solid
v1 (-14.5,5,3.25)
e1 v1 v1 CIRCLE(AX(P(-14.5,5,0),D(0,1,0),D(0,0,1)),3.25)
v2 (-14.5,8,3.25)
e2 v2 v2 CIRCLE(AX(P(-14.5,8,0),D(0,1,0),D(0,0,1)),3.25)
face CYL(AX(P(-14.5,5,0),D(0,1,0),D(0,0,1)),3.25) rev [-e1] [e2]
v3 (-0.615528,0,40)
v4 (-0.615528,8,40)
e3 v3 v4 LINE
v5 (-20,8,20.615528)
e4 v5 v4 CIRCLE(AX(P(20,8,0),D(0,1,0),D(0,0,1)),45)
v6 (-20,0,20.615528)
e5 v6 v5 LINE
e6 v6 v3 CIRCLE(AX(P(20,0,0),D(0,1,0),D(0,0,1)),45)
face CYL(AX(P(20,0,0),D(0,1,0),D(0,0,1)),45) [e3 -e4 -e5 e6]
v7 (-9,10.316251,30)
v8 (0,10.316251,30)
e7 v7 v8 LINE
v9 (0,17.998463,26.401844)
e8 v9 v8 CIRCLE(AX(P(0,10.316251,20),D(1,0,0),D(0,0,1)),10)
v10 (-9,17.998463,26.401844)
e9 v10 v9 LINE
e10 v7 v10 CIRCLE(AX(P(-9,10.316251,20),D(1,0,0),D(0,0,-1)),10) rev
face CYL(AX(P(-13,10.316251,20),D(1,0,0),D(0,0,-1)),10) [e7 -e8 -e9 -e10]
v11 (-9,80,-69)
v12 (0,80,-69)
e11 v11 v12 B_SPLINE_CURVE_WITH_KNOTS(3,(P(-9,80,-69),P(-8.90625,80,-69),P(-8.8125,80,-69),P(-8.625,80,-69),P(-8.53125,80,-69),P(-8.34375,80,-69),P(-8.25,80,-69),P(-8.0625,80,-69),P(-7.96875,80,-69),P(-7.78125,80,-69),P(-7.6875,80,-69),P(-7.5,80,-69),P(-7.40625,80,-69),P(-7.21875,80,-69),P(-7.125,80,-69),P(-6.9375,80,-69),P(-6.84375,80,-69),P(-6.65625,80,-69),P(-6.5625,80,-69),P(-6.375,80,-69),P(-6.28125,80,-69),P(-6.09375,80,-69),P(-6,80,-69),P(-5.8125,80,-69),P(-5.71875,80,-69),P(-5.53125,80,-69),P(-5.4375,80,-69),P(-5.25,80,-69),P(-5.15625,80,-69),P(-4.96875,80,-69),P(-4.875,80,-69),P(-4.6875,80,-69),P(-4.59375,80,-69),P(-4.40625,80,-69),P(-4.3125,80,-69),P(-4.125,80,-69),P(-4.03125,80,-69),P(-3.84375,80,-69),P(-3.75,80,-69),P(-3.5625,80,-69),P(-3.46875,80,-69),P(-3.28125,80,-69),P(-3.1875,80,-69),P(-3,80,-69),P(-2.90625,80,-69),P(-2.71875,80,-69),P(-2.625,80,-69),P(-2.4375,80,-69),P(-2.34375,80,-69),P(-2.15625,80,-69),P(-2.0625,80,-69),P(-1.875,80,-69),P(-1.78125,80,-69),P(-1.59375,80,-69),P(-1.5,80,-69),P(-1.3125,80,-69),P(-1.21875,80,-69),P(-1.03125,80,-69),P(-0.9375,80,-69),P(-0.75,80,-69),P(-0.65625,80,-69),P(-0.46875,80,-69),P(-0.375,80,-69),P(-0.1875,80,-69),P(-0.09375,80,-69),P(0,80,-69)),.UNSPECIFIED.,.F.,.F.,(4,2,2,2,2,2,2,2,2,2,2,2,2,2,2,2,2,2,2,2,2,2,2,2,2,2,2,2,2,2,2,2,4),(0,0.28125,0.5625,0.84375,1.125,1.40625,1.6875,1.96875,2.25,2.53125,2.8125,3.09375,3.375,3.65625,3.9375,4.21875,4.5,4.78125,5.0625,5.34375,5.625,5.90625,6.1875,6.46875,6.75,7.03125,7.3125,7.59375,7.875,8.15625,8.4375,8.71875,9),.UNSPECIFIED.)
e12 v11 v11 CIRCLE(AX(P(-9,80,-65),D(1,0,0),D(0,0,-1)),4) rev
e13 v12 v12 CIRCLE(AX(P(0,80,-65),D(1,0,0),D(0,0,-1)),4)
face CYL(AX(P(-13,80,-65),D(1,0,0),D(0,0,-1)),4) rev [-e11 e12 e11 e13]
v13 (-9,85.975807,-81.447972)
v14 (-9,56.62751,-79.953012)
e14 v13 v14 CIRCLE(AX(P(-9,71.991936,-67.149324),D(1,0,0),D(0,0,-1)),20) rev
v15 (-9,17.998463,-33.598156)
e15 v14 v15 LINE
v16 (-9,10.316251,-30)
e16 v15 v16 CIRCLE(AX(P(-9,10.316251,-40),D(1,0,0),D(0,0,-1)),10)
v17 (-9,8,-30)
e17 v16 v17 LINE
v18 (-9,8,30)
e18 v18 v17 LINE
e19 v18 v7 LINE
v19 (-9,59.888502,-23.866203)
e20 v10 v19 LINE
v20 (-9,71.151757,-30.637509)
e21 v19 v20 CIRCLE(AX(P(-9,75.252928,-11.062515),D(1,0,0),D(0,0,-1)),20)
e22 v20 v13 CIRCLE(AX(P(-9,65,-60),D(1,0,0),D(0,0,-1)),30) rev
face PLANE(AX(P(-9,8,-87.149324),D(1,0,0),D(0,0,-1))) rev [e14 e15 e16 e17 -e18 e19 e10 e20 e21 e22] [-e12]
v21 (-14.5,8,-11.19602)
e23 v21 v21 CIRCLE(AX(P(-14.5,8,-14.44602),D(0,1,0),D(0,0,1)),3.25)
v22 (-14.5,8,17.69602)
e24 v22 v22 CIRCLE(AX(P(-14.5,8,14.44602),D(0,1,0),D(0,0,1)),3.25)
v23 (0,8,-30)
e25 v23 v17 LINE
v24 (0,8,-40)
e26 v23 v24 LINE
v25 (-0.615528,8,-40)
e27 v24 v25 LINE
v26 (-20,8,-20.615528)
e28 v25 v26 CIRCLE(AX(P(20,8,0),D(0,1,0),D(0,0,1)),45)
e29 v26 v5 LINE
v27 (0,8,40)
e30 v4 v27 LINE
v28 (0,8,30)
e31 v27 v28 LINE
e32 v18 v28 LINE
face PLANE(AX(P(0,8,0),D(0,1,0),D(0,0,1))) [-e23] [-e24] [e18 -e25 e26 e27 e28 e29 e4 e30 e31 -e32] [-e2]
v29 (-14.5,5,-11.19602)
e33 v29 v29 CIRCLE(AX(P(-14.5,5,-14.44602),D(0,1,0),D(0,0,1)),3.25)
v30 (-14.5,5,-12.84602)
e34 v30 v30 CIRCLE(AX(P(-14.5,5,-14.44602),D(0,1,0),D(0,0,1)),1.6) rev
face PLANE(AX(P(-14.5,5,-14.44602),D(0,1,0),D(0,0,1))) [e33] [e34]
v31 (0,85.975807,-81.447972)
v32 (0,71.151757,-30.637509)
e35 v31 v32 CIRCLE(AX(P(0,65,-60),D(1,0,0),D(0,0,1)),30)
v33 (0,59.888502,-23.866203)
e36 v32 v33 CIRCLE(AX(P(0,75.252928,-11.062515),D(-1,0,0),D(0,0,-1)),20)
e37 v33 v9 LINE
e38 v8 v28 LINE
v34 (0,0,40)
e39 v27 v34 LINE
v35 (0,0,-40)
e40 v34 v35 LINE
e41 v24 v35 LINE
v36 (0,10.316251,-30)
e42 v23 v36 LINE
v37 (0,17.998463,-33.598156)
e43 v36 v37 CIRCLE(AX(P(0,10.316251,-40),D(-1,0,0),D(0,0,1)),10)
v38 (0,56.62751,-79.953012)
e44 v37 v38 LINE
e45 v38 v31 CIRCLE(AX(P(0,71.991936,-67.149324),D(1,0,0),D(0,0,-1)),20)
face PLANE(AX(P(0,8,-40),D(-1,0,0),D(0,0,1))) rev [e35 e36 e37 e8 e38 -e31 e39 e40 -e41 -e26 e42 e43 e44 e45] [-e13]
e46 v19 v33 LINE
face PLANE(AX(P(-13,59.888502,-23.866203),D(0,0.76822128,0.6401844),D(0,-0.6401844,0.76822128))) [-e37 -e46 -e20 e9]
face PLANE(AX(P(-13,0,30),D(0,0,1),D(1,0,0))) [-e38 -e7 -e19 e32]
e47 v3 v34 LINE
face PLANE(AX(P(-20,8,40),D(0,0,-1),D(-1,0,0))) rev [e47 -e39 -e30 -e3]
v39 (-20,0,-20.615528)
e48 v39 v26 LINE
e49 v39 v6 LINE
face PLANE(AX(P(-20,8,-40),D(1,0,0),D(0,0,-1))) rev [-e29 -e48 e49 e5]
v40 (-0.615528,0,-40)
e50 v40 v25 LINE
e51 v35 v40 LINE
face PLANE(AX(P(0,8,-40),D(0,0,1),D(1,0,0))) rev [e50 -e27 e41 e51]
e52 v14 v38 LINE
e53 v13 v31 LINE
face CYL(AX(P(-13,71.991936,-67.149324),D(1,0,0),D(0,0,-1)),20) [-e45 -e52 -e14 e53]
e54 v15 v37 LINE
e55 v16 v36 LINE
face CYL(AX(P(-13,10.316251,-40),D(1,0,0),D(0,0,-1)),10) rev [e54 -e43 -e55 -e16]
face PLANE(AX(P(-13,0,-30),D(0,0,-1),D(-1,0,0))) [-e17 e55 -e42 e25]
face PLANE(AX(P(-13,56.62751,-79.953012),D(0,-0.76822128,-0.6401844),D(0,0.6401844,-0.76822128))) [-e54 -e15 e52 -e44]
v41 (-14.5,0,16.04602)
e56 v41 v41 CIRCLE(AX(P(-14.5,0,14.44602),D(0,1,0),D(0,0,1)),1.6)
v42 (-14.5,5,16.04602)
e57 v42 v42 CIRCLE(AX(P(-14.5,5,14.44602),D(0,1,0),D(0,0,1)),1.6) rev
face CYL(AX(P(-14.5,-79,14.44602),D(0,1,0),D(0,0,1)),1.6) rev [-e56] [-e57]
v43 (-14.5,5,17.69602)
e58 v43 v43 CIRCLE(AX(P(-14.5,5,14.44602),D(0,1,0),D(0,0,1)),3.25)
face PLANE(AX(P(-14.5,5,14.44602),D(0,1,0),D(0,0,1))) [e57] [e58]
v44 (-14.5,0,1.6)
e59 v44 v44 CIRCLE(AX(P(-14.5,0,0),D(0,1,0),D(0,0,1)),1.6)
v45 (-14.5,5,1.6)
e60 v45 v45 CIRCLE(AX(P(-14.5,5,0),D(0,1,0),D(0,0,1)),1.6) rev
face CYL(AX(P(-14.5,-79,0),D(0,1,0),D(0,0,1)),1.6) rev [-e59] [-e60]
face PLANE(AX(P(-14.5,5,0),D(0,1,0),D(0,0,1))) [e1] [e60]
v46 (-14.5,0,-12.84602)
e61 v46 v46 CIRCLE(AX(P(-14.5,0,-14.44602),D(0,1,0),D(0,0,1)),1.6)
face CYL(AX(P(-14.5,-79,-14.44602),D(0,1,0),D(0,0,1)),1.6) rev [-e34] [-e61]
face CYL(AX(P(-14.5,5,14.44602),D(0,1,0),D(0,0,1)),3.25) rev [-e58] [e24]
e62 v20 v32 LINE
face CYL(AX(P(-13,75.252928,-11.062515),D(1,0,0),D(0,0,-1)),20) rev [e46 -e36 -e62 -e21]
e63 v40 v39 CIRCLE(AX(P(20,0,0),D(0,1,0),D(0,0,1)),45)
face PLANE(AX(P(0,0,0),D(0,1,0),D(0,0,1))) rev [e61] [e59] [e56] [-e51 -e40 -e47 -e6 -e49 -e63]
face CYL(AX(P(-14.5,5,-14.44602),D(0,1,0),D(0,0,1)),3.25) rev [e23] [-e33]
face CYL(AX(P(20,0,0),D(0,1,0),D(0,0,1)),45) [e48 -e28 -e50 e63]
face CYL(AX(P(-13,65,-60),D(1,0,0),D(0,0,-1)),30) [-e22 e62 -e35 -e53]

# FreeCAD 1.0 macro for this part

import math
import FreeCAD as App
import Part
import Sketcher

V = App.Vector
Q = App.Units.Quantity

doc = App.newDocument("Part")
body = doc.addObject("PartDesign::Body", "Body")

sketch1 = body.newObject("Sketcher::SketchObject", "Sketch")
sketch1.AttachmentSupport = (doc.getObject("XZ_Plane"), [""])
sketch1.MapMode = "FlatFace"
sketch1.addGeometry([
    Part.LineSegment(V(-20, -40, 0), V(-20, 40, 0)),
    Part.LineSegment(V(-20, 40, 0), V(0, 40, 0)),
    Part.LineSegment(V(0, 40, 0), V(0, -40, 0)),
    Part.LineSegment(V(0, -40, 0), V(-20, -40, 0)),
], False)
sketch1.addConstraint([
    Sketcher.Constraint("Coincident", 0, 2, 1, 1),
    Sketcher.Constraint("Coincident", 1, 2, 2, 1),
    Sketcher.Constraint("Coincident", 2, 2, 3, 1),
    Sketcher.Constraint("Coincident", 3, 2, 0, 1),
    Sketcher.Constraint("Vertical", 0),
    Sketcher.Constraint("Horizontal", 1),
    Sketcher.Constraint("Vertical", 2),
    Sketcher.Constraint("Horizontal", 3),
    Sketcher.Constraint("Symmetric", 1, 2, 2, 2, -1, 1),
    Sketcher.Constraint("DistanceX", 1, 1, 1, 2, Q("20 mm")),
    Sketcher.Constraint("DistanceY", 0, 1, 0, 2, Q("80 mm")),
])
pad1 = body.newObject("PartDesign::Pad", "Pad")
pad1.Profile = sketch1
pad1.Length = 8
pad1.Reversed = True

sketch2 = body.newObject("Sketcher::SketchObject", "Sketch001")
sketch2.AttachmentSupport = (doc.getObject("XZ_Plane"), [""])
sketch2.MapMode = "FlatFace"
sketch2.AttachmentOffset = App.Placement(V(0, 0, -8), App.Rotation())
sketch2.addGeometry([
    Part.ArcOfCircle(Part.Circle(V(20, 0, 0), V(0, 0, 1), 45), math.radians(117.266044), math.radians(152.733956)),
    Part.LineSegment(V(-20, 20.615528, 0), V(-20, 40, 0)),
    Part.LineSegment(V(-20, 40, 0), V(-0.615528, 40, 0)),
    Part.LineSegment(V(-0.615528, -40, 0), V(-20, -40, 0)),
    Part.LineSegment(V(-20, -40, 0), V(-20, -20.615528, 0)),
    Part.ArcOfCircle(Part.Circle(V(20, 0, 0), V(0, 0, 1), 45), math.radians(-152.733956), math.radians(-117.266044)),
], False)
sketch2.addConstraint([
    Sketcher.Constraint("Coincident", 0, 2, 1, 1),
    Sketcher.Constraint("Coincident", 1, 2, 2, 1),
    Sketcher.Constraint("Coincident", 2, 2, 0, 1),
    Sketcher.Constraint("Coincident", 3, 2, 4, 1),
    Sketcher.Constraint("Coincident", 4, 2, 5, 1),
    Sketcher.Constraint("Coincident", 5, 2, 3, 1),
    Sketcher.Constraint("Vertical", 1),
    Sketcher.Constraint("Horizontal", 2),
    Sketcher.Constraint("Horizontal", 3),
    Sketcher.Constraint("Vertical", 4),
    Sketcher.Constraint("Coincident", 5, 3, 0, 3),
    Sketcher.Constraint("Equal", 0, 5),
    Sketcher.Constraint("Symmetric", 1, 2, 3, 2, -1),
    Sketcher.Constraint("PointOnObject", 0, 3, -1),
    Sketcher.Constraint("Equal", 3, 1),
    Sketcher.Constraint("Radius", 0, Q("45 mm")),
    Sketcher.Constraint("DistanceX", -1, 1, 0, 3, Q("20 mm")),
    Sketcher.Constraint("DistanceX", 0, 2, -1, 1, Q("20 mm")),
])
pocket1 = body.newObject("PartDesign::Pocket", "Pocket")
pocket1.Profile = sketch2
pocket1.Length = 8
pocket1.Reversed = True

sketch3 = body.newObject("Sketcher::SketchObject", "Sketch002")
sketch3.AttachmentSupport = (doc.getObject("YZ_Plane"), [""])
sketch3.MapMode = "FlatFace"
sketch3.addGeometry([
    Part.LineSegment(V(0, -30, 0), V(10.316251, -30, 0)),
    Part.ArcOfCircle(Part.Circle(V(10.316251, -40, 0), V(0, 0, 1), 10), math.radians(39.805571), math.radians(90)),
    Part.LineSegment(V(17.998463, -33.598156, 0), V(56.62751, -79.953012, 0)),
    Part.ArcOfCircle(Part.Circle(V(71.991936, -67.149324, 0), V(0, 0, 1), 20), math.radians(-140.194429), math.radians(-45.63766)),
    Part.ArcOfCircle(Part.Circle(V(65, -60, 0), V(0, 0, 1), 30), math.radians(-45.63766), math.radians(78.167073)),
    Part.ArcOfCircle(Part.Circle(V(75.252928, -11.062515, 0), V(0, 0, 1), 20), math.radians(-140.194429), math.radians(-101.832927)),
    Part.LineSegment(V(59.888502, -23.866203, 0), V(17.998463, 26.401844, 0)),
    Part.ArcOfCircle(Part.Circle(V(10.316251, 20, 0), V(0, 0, 1), 10), math.radians(39.805571), math.radians(90)),
    Part.LineSegment(V(10.316251, 30, 0), V(0, 30, 0)),
    Part.LineSegment(V(0, 30, 0), V(0, -30, 0)),
    Part.Circle(V(80, -65, 0), V(0, 0, 1), 4),
], False)
sketch3.addConstraint([
    Sketcher.Constraint("Tangent", 0, 2, 1, 2),
    Sketcher.Constraint("Tangent", 1, 1, 2, 1),
    Sketcher.Constraint("Tangent", 2, 2, 3, 1),
    Sketcher.Constraint("Tangent", 3, 2, 4, 1),
    Sketcher.Constraint("Tangent", 4, 2, 5, 2),
    Sketcher.Constraint("Tangent", 5, 1, 6, 1),
    Sketcher.Constraint("Tangent", 6, 2, 7, 1),
    Sketcher.Constraint("Tangent", 7, 2, 8, 1),
    Sketcher.Constraint("Coincident", 8, 2, 9, 1),
    Sketcher.Constraint("Coincident", 9, 2, 0, 1),
    Sketcher.Constraint("Horizontal", 0),
    Sketcher.Constraint("Horizontal", 8),
    Sketcher.Constraint("Vertical", 9),
    Sketcher.Constraint("Equal", 3, 5),
    Sketcher.Constraint("Equal", 1, 7),
    Sketcher.Constraint("Symmetric", 8, 2, 9, 2, -1, 1),
    Sketcher.Constraint("Parallel", 2, 6),
    Sketcher.Constraint("Vertical", 1, 3, 7, 3),
    Sketcher.Constraint("Diameter", 10, Q("8 mm")),
    Sketcher.Constraint("Radius", 1, Q("10 mm")),
    Sketcher.Constraint("Radius", 3, Q("20 mm")),
    Sketcher.Constraint("Radius", 4, Q("30 mm")),
    Sketcher.Constraint("DistanceY", 9, 2, 9, 1, Q("60 mm")),
    Sketcher.Constraint("DistanceX", -1, 1, 4, 3, Q("65 mm")),
    Sketcher.Constraint("DistanceY", 4, 3, -1, 1, Q("60 mm")),
    Sketcher.Constraint("DistanceX", -1, 1, 10, 3, Q("80 mm")),
    Sketcher.Constraint("DistanceY", 10, 3, -1, 1, Q("65 mm")),
    Sketcher.Constraint("Distance", 2, Q("60.3405 mm")),
    Sketcher.Constraint("DistanceX", 0, 1, 0, 2, Q("10.316251 mm")),
])
pad2 = body.newObject("PartDesign::Pad", "Pad001")
pad2.Profile = sketch3
pad2.Length = 13
pad2.Reversed = True

sketch4 = body.newObject("Sketcher::SketchObject", "Sketch003")
sketch4.AttachmentSupport = (doc.getObject("XZ_Plane"), [""])
sketch4.MapMode = "FlatFace"
sketch4.AttachmentOffset = App.Placement(V(0, 0, -95), App.Rotation())
sketch4.addGeometry([
    Part.LineSegment(V(-20, -87.149324, 0), V(-20, 46.616628, 0)),
    Part.LineSegment(V(-20, 46.616628, 0), V(-9, 46.616628, 0)),
    Part.LineSegment(V(-9, 46.616628, 0), V(-9, -87.149324, 0)),
    Part.LineSegment(V(-9, -87.149324, 0), V(-20, -87.149324, 0)),
], False)
sketch4.addConstraint([
    Sketcher.Constraint("Coincident", 0, 2, 1, 1),
    Sketcher.Constraint("Coincident", 1, 2, 2, 1),
    Sketcher.Constraint("Coincident", 2, 2, 3, 1),
    Sketcher.Constraint("Coincident", 3, 2, 0, 1),
    Sketcher.Constraint("Vertical", 0),
    Sketcher.Constraint("Horizontal", 1),
    Sketcher.Constraint("Vertical", 2),
    Sketcher.Constraint("Horizontal", 3),
    Sketcher.Constraint("DistanceX", 1, 1, 1, 2, Q("11 mm")),
    Sketcher.Constraint("DistanceX", 0, 2, -1, 1, Q("20 mm")),
    Sketcher.Constraint("DistanceY", 0, 1, 0, 2, Q("133.765952 mm")),
    Sketcher.Constraint("DistanceY", -1, 1, 0, 2, Q("46.616628 mm")),
])
pocket2 = body.newObject("PartDesign::Pocket", "Pocket001")
pocket2.Profile = sketch4
pocket2.Length = 87
pocket2.Reversed = True

sketch5 = body.newObject("Sketcher::SketchObject", "Sketch004")
sketch5.AttachmentSupport = (doc.getObject("XZ_Plane"), [""])
sketch5.MapMode = "FlatFace"
sketch5.AttachmentOffset = App.Placement(V(0, 0, -8), App.Rotation())
sketch5.addGeometry([
    Part.Circle(V(-14.5, -14.44602, 0), V(0, 0, 1), 1.6),
    Part.Circle(V(-14.5, 0, 0), V(0, 0, 1), 1.6),
    Part.Circle(V(-14.5, 14.44602, 0), V(0, 0, 1), 1.6),
], False)
sketch5.addConstraint([
    Sketcher.Constraint("Equal", 0, 1),
    Sketcher.Constraint("Equal", 1, 2),
    Sketcher.Constraint("Symmetric", 0, 3, 2, 3, -1),
    Sketcher.Constraint("PointOnObject", 1, 3, -1),
    Sketcher.Constraint("Vertical", 0, 3, 1, 3),
    Sketcher.Constraint("Diameter", 0, Q("3.2 mm")),
    Sketcher.Constraint("DistanceX", 0, 3, -1, 1, Q("14.5 mm")),
    Sketcher.Constraint("DistanceY", 0, 3, -1, 1, Q("14.44602 mm")),
])
pocket3 = body.newObject("PartDesign::Pocket", "Pocket002")
pocket3.Profile = sketch5
pocket3.Length = 87
pocket3.Reversed = True

sketch6 = body.newObject("Sketcher::SketchObject", "Sketch005")
sketch6.AttachmentSupport = (doc.getObject("XZ_Plane"), [""])
sketch6.MapMode = "FlatFace"
sketch6.AttachmentOffset = App.Placement(V(0, 0, -8), App.Rotation())
sketch6.addGeometry([
    Part.Circle(V(-14.5, -14.44602, 0), V(0, 0, 1), 3.25),
    Part.Circle(V(-14.5, 0, 0), V(0, 0, 1), 3.25),
    Part.Circle(V(-14.5, 14.44602, 0), V(0, 0, 1), 3.25),
], False)
sketch6.addConstraint([
    Sketcher.Constraint("Equal", 0, 1),
    Sketcher.Constraint("Equal", 1, 2),
    Sketcher.Constraint("Symmetric", 0, 3, 2, 3, -1),
    Sketcher.Constraint("PointOnObject", 1, 3, -1),
    Sketcher.Constraint("Vertical", 0, 3, 1, 3),
    Sketcher.Constraint("Diameter", 0, Q("6.5 mm")),
    Sketcher.Constraint("DistanceX", 0, 3, -1, 1, Q("14.5 mm")),
    Sketcher.Constraint("DistanceY", 0, 3, -1, 1, Q("14.44602 mm")),
])
pocket4 = body.newObject("PartDesign::Pocket", "Pocket003")
pocket4.Profile = sketch6
pocket4.Length = 3
pocket4.Reversed = True

doc.recompute()
